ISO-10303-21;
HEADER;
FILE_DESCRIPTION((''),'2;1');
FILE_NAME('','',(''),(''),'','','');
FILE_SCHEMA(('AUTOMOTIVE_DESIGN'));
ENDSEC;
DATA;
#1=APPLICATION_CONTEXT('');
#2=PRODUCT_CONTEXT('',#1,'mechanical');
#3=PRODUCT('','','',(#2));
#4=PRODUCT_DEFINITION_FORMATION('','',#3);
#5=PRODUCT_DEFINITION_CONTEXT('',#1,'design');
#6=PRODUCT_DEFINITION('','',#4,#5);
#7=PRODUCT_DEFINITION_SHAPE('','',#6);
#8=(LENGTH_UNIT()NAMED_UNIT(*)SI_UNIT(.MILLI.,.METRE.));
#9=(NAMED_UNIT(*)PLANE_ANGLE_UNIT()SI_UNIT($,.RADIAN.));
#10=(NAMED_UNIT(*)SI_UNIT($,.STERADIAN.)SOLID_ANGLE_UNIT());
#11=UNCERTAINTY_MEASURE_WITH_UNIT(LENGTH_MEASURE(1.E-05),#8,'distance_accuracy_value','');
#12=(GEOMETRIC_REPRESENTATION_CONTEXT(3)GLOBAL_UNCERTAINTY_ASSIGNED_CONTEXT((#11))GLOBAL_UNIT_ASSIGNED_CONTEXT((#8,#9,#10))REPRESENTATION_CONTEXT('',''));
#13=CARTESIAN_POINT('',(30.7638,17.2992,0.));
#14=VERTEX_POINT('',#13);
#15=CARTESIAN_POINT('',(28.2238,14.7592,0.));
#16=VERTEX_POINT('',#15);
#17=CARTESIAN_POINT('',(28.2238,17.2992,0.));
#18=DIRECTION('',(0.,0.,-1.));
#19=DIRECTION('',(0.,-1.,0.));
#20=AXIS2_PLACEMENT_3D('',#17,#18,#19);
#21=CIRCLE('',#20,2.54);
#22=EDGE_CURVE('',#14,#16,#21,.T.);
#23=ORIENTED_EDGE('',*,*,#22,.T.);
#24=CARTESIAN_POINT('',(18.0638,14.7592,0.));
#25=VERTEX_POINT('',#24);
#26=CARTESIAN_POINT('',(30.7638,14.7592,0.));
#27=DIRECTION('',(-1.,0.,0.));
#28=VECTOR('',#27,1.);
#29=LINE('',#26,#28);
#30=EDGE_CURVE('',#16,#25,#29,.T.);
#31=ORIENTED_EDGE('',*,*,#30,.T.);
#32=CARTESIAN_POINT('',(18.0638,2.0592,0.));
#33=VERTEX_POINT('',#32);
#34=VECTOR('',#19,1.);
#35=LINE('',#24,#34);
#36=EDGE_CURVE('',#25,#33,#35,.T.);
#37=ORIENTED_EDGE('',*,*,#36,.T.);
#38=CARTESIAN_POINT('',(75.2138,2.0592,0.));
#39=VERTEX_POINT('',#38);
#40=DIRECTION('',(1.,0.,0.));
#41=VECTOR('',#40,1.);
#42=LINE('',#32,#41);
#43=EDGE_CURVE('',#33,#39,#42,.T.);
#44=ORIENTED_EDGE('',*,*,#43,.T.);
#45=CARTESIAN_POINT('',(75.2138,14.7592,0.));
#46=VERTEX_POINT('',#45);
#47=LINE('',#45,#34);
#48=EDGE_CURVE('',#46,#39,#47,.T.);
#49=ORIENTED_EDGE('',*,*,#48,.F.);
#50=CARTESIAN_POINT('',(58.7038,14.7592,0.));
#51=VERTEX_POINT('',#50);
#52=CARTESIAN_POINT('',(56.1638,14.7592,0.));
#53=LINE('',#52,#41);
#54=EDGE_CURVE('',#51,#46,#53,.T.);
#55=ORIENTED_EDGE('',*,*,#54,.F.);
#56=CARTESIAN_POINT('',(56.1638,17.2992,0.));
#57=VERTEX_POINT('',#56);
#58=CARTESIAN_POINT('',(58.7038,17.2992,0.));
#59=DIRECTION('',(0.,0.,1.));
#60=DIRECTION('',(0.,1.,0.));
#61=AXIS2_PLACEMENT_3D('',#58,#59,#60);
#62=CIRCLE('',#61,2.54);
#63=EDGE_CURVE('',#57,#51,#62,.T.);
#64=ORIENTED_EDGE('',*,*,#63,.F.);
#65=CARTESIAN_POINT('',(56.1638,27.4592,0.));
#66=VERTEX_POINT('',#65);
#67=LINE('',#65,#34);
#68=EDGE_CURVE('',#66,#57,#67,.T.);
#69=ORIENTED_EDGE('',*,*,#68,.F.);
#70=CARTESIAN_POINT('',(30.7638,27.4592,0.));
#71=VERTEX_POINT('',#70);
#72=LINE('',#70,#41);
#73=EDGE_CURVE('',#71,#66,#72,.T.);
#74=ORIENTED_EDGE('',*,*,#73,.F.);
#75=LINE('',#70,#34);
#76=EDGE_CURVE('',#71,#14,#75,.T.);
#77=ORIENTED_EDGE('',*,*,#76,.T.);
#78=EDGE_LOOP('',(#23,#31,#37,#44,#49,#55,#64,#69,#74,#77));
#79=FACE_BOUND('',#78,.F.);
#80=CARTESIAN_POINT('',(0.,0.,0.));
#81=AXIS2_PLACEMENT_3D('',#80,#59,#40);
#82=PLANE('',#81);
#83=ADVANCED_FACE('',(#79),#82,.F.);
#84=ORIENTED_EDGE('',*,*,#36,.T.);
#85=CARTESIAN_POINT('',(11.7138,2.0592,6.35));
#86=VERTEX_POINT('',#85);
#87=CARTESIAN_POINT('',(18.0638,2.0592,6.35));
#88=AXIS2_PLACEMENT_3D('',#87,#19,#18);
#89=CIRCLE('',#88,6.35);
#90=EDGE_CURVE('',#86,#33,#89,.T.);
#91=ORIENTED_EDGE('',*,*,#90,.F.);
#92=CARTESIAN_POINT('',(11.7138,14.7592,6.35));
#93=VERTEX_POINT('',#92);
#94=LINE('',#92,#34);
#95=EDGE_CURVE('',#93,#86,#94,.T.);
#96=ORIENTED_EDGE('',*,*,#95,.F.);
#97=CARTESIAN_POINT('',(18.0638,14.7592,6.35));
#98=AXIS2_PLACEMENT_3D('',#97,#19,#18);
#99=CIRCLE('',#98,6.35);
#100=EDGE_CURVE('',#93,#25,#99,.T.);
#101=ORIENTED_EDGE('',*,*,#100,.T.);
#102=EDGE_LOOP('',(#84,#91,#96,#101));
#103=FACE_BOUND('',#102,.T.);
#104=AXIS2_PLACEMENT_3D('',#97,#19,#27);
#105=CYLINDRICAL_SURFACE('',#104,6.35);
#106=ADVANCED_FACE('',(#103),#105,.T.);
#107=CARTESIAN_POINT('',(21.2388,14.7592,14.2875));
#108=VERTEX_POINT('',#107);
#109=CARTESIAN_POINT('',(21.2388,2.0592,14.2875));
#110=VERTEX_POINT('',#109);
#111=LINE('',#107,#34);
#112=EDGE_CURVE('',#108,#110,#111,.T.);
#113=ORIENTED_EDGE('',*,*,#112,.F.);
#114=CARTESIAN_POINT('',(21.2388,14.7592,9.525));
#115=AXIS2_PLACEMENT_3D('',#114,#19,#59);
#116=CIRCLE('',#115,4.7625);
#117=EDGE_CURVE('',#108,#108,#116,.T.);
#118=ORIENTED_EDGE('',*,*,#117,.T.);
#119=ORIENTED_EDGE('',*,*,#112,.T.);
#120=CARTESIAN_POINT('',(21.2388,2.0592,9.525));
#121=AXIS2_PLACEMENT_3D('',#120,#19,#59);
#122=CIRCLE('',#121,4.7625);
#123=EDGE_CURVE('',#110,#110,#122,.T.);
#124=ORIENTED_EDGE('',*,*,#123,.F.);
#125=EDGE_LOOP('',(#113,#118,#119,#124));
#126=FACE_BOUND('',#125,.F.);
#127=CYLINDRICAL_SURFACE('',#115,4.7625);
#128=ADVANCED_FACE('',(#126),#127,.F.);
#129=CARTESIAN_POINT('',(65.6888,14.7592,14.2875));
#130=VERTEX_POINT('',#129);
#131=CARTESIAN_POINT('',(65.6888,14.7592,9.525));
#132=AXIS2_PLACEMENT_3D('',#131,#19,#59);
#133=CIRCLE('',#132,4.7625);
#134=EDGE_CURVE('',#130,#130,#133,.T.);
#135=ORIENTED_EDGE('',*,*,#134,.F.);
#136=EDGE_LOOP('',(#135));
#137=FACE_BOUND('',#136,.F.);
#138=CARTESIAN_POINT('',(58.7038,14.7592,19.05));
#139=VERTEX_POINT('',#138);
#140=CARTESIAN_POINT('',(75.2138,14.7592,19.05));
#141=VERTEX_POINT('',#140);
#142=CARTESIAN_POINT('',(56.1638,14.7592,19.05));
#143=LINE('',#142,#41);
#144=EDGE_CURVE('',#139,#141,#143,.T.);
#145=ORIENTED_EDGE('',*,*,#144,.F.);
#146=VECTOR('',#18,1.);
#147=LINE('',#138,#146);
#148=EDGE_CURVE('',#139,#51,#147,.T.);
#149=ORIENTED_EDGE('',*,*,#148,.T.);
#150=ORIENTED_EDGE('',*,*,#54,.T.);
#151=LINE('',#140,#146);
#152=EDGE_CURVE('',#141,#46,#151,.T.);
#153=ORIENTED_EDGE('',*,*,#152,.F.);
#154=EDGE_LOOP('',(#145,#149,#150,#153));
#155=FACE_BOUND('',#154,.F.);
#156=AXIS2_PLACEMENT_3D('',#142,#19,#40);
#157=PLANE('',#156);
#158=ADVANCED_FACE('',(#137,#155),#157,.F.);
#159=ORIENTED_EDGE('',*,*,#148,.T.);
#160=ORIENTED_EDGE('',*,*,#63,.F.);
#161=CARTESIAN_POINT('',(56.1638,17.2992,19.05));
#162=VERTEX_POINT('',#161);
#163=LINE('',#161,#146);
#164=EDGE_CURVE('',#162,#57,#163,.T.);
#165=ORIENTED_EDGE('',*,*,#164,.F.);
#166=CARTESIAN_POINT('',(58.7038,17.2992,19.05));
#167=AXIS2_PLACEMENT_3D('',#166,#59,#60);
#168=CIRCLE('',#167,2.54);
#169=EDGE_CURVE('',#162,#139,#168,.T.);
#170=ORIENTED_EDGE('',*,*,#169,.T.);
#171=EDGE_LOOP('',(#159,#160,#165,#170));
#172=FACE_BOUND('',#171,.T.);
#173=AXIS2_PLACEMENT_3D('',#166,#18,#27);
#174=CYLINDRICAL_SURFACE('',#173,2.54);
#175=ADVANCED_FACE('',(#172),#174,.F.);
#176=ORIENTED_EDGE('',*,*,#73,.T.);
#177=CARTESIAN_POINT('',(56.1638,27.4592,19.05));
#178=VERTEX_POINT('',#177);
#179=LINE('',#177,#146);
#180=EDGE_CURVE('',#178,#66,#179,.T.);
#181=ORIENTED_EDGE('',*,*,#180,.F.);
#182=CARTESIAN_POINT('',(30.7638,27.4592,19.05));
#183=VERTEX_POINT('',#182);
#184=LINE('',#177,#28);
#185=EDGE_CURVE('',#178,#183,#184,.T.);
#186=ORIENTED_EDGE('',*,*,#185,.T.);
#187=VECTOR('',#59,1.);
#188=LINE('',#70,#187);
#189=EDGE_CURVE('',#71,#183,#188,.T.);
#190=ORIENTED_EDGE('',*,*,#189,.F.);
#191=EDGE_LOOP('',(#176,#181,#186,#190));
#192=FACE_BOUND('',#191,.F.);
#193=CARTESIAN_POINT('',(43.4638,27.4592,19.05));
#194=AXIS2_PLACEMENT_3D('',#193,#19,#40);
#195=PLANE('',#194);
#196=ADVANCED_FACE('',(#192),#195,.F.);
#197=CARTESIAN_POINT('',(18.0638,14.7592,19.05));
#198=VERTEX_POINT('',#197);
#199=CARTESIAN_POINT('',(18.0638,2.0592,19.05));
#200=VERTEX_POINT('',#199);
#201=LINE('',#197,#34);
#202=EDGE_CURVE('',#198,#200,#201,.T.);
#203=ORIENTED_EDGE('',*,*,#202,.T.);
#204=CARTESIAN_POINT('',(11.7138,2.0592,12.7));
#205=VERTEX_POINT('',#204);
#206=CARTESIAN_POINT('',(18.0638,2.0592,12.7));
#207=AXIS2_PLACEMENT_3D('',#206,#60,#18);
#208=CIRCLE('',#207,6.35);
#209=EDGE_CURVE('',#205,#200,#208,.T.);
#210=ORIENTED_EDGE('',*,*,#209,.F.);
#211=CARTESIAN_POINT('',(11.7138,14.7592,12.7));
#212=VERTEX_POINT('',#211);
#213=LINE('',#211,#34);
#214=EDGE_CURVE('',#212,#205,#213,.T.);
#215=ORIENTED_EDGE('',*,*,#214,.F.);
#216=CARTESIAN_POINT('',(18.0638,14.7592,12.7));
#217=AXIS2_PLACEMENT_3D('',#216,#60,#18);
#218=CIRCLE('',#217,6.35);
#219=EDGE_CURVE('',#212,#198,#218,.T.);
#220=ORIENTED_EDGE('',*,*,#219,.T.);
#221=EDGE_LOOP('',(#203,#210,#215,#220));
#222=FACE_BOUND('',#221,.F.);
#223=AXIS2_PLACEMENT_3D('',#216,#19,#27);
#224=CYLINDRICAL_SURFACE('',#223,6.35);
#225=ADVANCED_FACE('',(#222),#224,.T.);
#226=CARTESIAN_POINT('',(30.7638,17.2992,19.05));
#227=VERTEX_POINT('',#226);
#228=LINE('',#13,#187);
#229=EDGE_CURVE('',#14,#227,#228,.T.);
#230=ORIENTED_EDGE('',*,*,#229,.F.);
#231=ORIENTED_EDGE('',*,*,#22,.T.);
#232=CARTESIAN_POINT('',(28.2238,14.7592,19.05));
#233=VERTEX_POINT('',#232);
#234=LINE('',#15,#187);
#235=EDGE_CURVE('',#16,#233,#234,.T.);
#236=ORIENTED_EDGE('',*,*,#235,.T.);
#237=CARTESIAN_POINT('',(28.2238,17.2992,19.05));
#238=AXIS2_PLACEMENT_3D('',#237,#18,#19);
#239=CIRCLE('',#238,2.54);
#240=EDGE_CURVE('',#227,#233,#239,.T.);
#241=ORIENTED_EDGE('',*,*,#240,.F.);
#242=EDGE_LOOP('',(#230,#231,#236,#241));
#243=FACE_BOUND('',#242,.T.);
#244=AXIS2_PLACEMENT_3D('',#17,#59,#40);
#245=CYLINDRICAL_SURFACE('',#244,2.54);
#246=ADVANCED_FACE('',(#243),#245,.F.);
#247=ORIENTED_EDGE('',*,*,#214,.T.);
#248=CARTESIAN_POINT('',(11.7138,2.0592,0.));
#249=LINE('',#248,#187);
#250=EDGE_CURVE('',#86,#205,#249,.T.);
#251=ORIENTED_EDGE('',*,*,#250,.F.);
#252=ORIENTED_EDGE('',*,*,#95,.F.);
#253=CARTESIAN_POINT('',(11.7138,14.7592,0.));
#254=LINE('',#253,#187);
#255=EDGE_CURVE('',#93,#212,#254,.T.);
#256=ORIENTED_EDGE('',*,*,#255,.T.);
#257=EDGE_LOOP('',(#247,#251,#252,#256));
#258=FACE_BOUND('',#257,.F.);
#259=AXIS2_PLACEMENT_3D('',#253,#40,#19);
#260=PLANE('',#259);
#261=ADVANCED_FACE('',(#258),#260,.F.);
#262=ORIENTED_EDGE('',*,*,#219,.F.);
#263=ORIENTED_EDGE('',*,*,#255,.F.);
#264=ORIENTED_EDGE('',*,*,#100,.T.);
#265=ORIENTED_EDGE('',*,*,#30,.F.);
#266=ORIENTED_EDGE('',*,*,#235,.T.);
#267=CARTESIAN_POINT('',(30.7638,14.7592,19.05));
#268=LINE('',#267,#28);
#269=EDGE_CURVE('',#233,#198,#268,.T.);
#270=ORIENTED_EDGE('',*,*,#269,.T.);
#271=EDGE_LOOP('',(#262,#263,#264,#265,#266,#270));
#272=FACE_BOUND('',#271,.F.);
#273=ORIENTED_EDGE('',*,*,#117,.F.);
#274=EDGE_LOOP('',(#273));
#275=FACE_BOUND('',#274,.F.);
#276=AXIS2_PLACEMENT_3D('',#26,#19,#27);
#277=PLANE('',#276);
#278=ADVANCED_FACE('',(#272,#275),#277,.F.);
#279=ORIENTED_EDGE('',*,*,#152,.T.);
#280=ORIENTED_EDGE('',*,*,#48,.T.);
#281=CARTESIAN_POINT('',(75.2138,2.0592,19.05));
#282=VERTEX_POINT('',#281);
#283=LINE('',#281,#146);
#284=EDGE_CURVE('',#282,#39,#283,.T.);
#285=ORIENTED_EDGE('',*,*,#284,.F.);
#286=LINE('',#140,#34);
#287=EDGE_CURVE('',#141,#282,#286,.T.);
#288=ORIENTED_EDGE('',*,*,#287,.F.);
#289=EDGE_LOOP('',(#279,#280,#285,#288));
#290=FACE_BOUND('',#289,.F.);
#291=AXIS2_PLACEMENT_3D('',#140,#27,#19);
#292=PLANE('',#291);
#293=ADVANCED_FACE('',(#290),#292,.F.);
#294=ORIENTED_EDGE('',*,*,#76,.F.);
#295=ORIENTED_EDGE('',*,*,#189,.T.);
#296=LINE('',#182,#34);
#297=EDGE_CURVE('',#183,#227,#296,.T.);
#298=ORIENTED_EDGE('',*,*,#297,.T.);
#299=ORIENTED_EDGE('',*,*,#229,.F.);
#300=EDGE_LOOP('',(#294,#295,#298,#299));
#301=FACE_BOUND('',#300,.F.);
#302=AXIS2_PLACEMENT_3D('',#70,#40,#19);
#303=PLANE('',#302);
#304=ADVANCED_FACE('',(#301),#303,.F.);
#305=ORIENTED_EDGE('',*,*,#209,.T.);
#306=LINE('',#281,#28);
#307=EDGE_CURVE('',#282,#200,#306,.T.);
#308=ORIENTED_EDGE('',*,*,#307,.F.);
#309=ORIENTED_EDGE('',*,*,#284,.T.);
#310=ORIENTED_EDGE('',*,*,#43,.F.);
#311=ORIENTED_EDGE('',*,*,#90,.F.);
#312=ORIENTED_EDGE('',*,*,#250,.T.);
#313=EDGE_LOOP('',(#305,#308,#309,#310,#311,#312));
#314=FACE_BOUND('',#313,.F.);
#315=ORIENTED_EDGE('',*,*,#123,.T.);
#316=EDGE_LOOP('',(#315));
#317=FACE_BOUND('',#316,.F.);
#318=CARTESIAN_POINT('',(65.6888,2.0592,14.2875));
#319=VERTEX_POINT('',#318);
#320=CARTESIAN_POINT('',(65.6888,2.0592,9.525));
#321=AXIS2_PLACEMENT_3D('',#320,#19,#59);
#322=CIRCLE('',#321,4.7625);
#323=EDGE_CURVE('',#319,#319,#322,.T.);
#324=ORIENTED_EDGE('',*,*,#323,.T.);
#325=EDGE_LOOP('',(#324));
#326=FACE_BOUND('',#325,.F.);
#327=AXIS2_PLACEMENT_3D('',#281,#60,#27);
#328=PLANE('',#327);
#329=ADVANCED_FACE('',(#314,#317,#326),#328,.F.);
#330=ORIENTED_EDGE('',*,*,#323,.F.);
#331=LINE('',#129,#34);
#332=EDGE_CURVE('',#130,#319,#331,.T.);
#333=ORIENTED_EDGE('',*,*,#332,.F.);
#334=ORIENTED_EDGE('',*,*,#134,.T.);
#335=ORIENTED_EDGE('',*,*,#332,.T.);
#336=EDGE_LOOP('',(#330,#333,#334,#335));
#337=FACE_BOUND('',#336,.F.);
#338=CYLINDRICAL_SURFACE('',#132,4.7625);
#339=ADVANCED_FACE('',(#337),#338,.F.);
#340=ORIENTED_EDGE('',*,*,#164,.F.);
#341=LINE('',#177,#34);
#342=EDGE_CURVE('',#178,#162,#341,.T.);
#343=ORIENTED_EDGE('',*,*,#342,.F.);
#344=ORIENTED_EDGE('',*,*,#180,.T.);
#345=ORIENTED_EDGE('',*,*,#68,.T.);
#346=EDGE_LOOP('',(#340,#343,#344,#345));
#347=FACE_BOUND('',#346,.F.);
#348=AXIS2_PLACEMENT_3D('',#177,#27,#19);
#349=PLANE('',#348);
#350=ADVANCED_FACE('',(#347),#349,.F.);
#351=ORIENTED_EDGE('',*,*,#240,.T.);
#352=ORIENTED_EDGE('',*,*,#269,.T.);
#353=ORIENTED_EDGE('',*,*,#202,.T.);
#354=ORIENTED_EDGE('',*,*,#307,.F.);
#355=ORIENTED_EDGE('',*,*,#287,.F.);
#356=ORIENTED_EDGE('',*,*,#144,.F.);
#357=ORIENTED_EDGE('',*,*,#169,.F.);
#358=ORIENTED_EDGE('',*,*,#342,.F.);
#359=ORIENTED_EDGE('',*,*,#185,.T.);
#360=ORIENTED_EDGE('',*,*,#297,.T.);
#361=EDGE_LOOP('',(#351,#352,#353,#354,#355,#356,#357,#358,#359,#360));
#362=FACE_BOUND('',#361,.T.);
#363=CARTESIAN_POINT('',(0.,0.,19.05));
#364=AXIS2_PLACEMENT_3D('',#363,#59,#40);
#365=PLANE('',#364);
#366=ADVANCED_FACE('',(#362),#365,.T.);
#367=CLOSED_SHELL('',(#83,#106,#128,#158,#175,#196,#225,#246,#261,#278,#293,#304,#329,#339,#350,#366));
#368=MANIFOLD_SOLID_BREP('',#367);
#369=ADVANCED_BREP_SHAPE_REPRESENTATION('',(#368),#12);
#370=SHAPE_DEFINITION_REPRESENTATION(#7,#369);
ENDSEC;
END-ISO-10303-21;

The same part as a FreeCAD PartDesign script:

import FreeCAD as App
import Part
import Sketcher

V = App.Vector
Q = App.Units.Quantity


def edges_at(feature, points):
    """Names of the edges that pass closest to the given points."""
    edges = feature.Shape.Edges
    near = lambda p: min(range(len(edges)), key=lambda i: edges[i].distToShape(Part.Vertex(*p))[0])
    return sorted({f"Edge{near(p) + 1}" for p in points})


def add_polygon(sketch, points):
    """Adds a closed chain of lines whose ends are joined by coincident constraints."""
    first, n = sketch.GeometryCount, len(points)
    for a, b in zip(points, points[1:] + points[:1]):
        sketch.addGeometry(Part.LineSegment(App.Vector(*a, 0), App.Vector(*b, 0)), False)
    for i in range(n):
        sketch.addConstraint(Sketcher.Constraint("Coincident", first + i, 2, first + (i + 1) % n, 1))

doc = App.newDocument("Part")
body = doc.addObject("PartDesign::Body", "Body")

sketch1 = body.newObject("Sketcher::SketchObject", "Sketch")
sketch1.AttachmentSupport = (doc.getObject("XY_Plane"), [""])
sketch1.MapMode = "FlatFace"
add_polygon(sketch1, [(43.4638, 2.0592), (43.4638, 27.4592), (30.7638, 27.4592), (30.7638, 14.7592), (11.7138, 14.7592), (11.7138, 2.0592)])
sketch1.addConstraint(Sketcher.Constraint("Vertical", 0))
sketch1.addConstraint(Sketcher.Constraint("Horizontal", 1))
sketch1.addConstraint(Sketcher.Constraint("Vertical", 2))
sketch1.addConstraint(Sketcher.Constraint("Horizontal", 3))
sketch1.addConstraint(Sketcher.Constraint("Vertical", 4))
sketch1.addConstraint(Sketcher.Constraint("Horizontal", 5))
sketch1.addConstraint(Sketcher.Constraint("Equal", 1, 2))
sketch1.addConstraint(Sketcher.Constraint("Equal", 2, 4))
sketch1.addConstraint(Sketcher.Constraint("DistanceX", 1, 2, 1, 1, Q("0.5 in")))
sketch1.addConstraint(Sketcher.Constraint("DistanceX", 5, 1, 5, 2, Q("1.25 in")))
sketch1.addConstraint(Sketcher.Constraint("DistanceX", -1, 1, 0, 2, Q("43.4638 mm")))
sketch1.addConstraint(Sketcher.Constraint("DistanceY", -1, 1, 0, 2, Q("27.4592 mm")))
pad1 = body.newObject("PartDesign::Pad", "Pad")
pad1.Profile = sketch1
pad1.Length = Q("0.75 in")
doc.recompute()

fillet = body.newObject("PartDesign::Fillet", "Fillet")
fillet.Base = (pad1, edges_at(pad1, [(11.714, 8.409, 19.05), (11.714, 8.409, 0)]))
fillet.Radius = Q("0.25 in")

sketch2 = body.newObject("Sketcher::SketchObject", "Sketch001")
sketch2.AttachmentSupport = (doc.getObject("XZ_Plane"), [""])
sketch2.MapMode = "FlatFace"
sketch2.AttachmentOffset = App.Placement(V(0, 0, -14.7592), App.Rotation())
sketch2.addGeometry(Part.Circle(V(21.2388, 9.525, 0), V(0, 0, 1), 4.7625), False)
sketch2.addGeometry(Part.Circle(V(-0.3229, 3.0828, 0), V(0, 0, 1), 4.7625), False)
sketch2.addGeometry(Part.Circle(V(21.2388, 9.525, 0), V(0, 0, 1), 4.7625), False)
sketch2.addConstraint(Sketcher.Constraint("Coincident", 2, 3, 0, 3))
sketch2.addConstraint(Sketcher.Constraint("Equal", 0, 1))
sketch2.addConstraint(Sketcher.Constraint("Equal", 1, 2))
sketch2.addConstraint(Sketcher.Constraint("Diameter", 0, Q("0.375 in")))
sketch2.addConstraint(Sketcher.Constraint("DistanceY", -1, 1, 0, 3, Q("0.375 in")))
sketch2.addConstraint(Sketcher.Constraint("DistanceX", -1, 1, 0, 3, Q("21.2388 mm")))
sketch2.addConstraint(Sketcher.Constraint("DistanceX", 1, 3, -1, 1, Q("0.323 mm")))
sketch2.addConstraint(Sketcher.Constraint("DistanceY", -1, 1, 1, 3, Q("3.0828 mm")))
doc.recompute()
hole = body.newObject("PartDesign::Hole", "Hole")
hole.Profile = sketch2
hole.ThreadType = "None"
hole.Diameter = Q("0.375 in")
hole.DepthType = "Dimension"
hole.Depth = Q("1 in")
hole.DrillPoint = "Angled"
hole.DrillPointAngle = 118
hole.Reversed = True

sketch3 = body.newObject("Sketcher::SketchObject", "Sketch002")
sketch3.AttachmentSupport = (doc.getObject("XY_Plane"), [""])
sketch3.MapMode = "FlatFace"
sketch3.AttachmentOffset = App.Placement(V(0, 0, 0.75 * 25.4), App.Rotation())
add_polygon(sketch3, [(75.2138, 2.0592), (75.2138, 14.7592), (56.1638, 14.7592), (56.1638, 27.4592), (43.4638, 27.4592), (43.4638, 2.0592)])
sketch3.addConstraint(Sketcher.Constraint("Vertical", 0))
sketch3.addConstraint(Sketcher.Constraint("Horizontal", 1))
sketch3.addConstraint(Sketcher.Constraint("Vertical", 2))
sketch3.addConstraint(Sketcher.Constraint("Horizontal", 3))
sketch3.addConstraint(Sketcher.Constraint("Vertical", 4))
sketch3.addConstraint(Sketcher.Constraint("Horizontal", 5))
sketch3.addConstraint(Sketcher.Constraint("Equal", 3, 0))
sketch3.addConstraint(Sketcher.Constraint("Equal", 0, 2))
sketch3.addConstraint(Sketcher.Constraint("DistanceX", 3, 2, 3, 1, Q("0.5 in")))
sketch3.addConstraint(Sketcher.Constraint("DistanceX", 5, 1, 5, 2, Q("1.25 in")))
sketch3.addConstraint(Sketcher.Constraint("DistanceX", -1, 1, 0, 2, Q("75.2138 mm")))
sketch3.addConstraint(Sketcher.Constraint("DistanceY", -1, 1, 0, 2, Q("14.7592 mm")))
pad2 = body.newObject("PartDesign::Pad", "Pad001")
pad2.Profile = sketch3
pad2.Length = Q("0.75 in")
pad2.Reversed = True

sketch4 = body.newObject("Sketcher::SketchObject", "Sketch003")
sketch4.AttachmentSupport = (doc.getObject("XZ_Plane"), [""])
sketch4.MapMode = "FlatFace"
sketch4.AttachmentOffset = App.Placement(V(0, 0, -14.7592), App.Rotation())
sketch4.addGeometry(Part.Circle(V(65.6888, 9.525, 0), V(0, 0, 1), 4.7625), False)
sketch4.addConstraint(Sketcher.Constraint("Diameter", 0, Q("0.375 in")))
sketch4.addConstraint(Sketcher.Constraint("DistanceY", -1, 1, 0, 3, Q("0.375 in")))
sketch4.addConstraint(Sketcher.Constraint("DistanceX", -1, 1, 0, 3, Q("65.6888 mm")))
doc.recompute()
hole2 = body.newObject("PartDesign::Hole", "Hole001")
hole2.Profile = sketch4
hole2.ThreadType = "None"
hole2.Diameter = Q("0.375 in")
hole2.DepthType = "ThroughAll"
hole2.Reversed = True
doc.recompute()

fillet2 = body.newObject("PartDesign::Fillet", "Fillet001")
fillet2.Base = (hole2, edges_at(hole2, [(30.764, 14.759, 9.525)]))
fillet2.Radius = Q("0.1 in")
doc.recompute()

fillet3 = body.newObject("PartDesign::Fillet", "Fillet002")
fillet3.Base = (fillet2, edges_at(fillet2, [(56.164, 14.759, 9.525)]))
fillet3.Radius = Q("0.1 in")

doc.recompute()
